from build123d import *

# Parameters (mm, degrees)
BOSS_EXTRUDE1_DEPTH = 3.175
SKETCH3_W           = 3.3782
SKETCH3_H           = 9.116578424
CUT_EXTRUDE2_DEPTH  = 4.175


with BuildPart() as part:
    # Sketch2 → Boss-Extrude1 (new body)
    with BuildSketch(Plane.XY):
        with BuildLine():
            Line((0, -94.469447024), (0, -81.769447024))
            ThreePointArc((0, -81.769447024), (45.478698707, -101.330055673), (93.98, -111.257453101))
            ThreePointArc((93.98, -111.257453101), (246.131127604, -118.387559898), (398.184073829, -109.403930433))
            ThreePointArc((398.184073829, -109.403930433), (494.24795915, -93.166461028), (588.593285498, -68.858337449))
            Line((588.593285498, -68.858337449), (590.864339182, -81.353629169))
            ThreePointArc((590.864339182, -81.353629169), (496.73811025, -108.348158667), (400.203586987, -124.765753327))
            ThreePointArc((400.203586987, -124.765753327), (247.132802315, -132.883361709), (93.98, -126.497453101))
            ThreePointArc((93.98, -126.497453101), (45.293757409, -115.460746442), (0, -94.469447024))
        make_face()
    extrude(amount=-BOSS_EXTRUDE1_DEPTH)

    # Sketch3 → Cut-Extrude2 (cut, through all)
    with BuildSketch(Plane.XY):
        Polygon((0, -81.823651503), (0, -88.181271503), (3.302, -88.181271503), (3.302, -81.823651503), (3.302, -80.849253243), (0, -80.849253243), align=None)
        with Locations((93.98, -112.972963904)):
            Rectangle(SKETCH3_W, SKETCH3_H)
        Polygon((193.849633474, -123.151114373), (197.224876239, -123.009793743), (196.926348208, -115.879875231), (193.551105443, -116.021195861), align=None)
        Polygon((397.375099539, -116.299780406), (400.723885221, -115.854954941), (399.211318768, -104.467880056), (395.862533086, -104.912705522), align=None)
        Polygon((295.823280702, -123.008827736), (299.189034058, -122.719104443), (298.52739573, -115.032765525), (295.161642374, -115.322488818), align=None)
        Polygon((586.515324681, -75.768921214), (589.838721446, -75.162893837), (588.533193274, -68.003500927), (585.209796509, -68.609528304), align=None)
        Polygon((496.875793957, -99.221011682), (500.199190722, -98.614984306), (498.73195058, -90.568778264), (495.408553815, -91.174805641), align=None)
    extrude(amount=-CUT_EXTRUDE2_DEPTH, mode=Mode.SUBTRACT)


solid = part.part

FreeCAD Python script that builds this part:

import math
import FreeCAD as App
import Part
import Sketcher

V = App.Vector
Q = App.Units.Quantity

doc = App.newDocument("Part")
body = doc.addObject("PartDesign::Body", "Body")

# Sketch on XY plane
sketch1 = body.newObject("Sketcher::SketchObject", "Sketch")
sketch1.AttachmentSupport = (doc.getObject("XY_Plane"), [""])
sketch1.MapMode = "FlatFace"
sketch1.addGeometry(Part.LineSegment(V(0, -82, 0), V(0, -94, 0)), False)
sketch1.addGeometry(Part.ArcOfCircle(Part.Circle(V(122, 109, 0), V(0, 0, 1), 237), math.radians(-121), math.radians(-97)), False)
sketch1.addGeometry(Part.ArcOfCircle(Part.Circle(V(238, 1487, 0), V(0, 0, 1), 1620), math.radians(-95.1), math.radians(-84.25)), False)
sketch1.addGeometry(Part.ArcOfCircle(Part.Circle(V(300, 754, 0), V(0, 0, 1), 884), math.radians(-83.52), math.radians(-70.82)), False)
sketch1.addGeometry(Part.LineSegment(V(591, -81, 0), V(589, -69, 0)), False)
sketch1.addGeometry(Part.ArcOfCircle(Part.Circle(V(255, 1032, 0), V(0, 0, 1), 1150), math.radians(-82.83), math.radians(-73.12)), False)
sketch1.addGeometry(Part.ArcOfCircle(Part.Circle(V(237, 1321, 0), V(0, 0, 1), 1440), math.radians(-95.72), math.radians(-83.59)), False)
sketch1.addGeometry(Part.ArcOfCircle(Part.Circle(V(118, 130, 0), V(0, 0, 1), 243), math.radians(-119), math.radians(-96)), False)
sketch1.addConstraint(Sketcher.Constraint("Coincident", 0, 2, 1, 1))
sketch1.addConstraint(Sketcher.Constraint("Coincident", 1, 2, 2, 1))
sketch1.addConstraint(Sketcher.Constraint("Coincident", 2, 2, 3, 1))
sketch1.addConstraint(Sketcher.Constraint("Coincident", 3, 2, 4, 1))
sketch1.addConstraint(Sketcher.Constraint("Coincident", 4, 2, 5, 2))
sketch1.addConstraint(Sketcher.Constraint("Coincident", 5, 1, 6, 2))
sketch1.addConstraint(Sketcher.Constraint("Tangent", 6, 1, 7, 2))
sketch1.addConstraint(Sketcher.Constraint("Coincident", 7, 1, 0, 1))
sketch1.addConstraint(Sketcher.Constraint("Vertical", 0))
sketch1.addConstraint(Sketcher.Constraint("PointOnObject", 0, 2, -2))
sketch1.addConstraint(Sketcher.Constraint("Vertical", 1, 2, 6, 1))
sketch1.addConstraint(Sketcher.Constraint("Radius", 3, Q("34.8 in")))
sketch1.addConstraint(Sketcher.Constraint("DistanceY", 0, 2, 0, 1, Q("0.5 in")))
sketch1.addConstraint(Sketcher.Constraint("Distance", 4, Q("0.5 in")))
sketch1.addConstraint(Sketcher.Constraint("DistanceX", -1, 1, 1, 2, Q("3.7 in")))
sketch1.addConstraint(Sketcher.Constraint("DistanceY", 1, 2, 6, 1, Q("0.6 in")))
sketch1.addConstraint(Sketcher.Constraint("Radius", 1, Q("236.96956 mm")))
sketch1.addConstraint(Sketcher.Constraint("Radius", 2, Q("1620.03361 mm")))
sketch1.addConstraint(Sketcher.Constraint("Radius", 5, Q("1150.31332 mm")))
sketch1.addConstraint(Sketcher.Constraint("Radius", 6, Q("1439.788577 mm")))
sketch1.addConstraint(Sketcher.Constraint("Radius", 7, Q("242.755675 mm")))
sketch1.addConstraint(Sketcher.Constraint("DistanceX", 7, 3, 2, 2, Q("11.1043001 in")))
sketch1.addConstraint(Sketcher.Constraint("DistanceX", 5, 3, 3, 3, Q("45.825899 mm")))
sketch1.addConstraint(Sketcher.Constraint("DistanceX", 1, 3, 6, 3, Q("115.623698 mm")))
sketch1.addConstraint(Sketcher.Constraint("DistanceY", 5, 1, 3, 2, Q("28.050301 mm")))
sketch1.addConstraint(Sketcher.Constraint("DistanceX", -1, 1, 2, 3, Q("237.97163 mm")))
sketch1.addConstraint(Sketcher.Constraint("DistanceX", -1, 1, 3, 3, Q("300.49835 mm")))
sketch1.addConstraint(Sketcher.Constraint("DistanceY", -1, 1, 5, 3, Q("1031.922118 mm")))
sketch1.addConstraint(Sketcher.Constraint("DistanceY", -1, 1, 6, 3, Q("1321.374292 mm")))
pad1 = body.newObject("PartDesign::Pad", "Pad")
pad1.Profile = sketch1
pad1.Length = Q("0.125 in")
pad1.Reversed = True

# Sketch on XY plane
sketch2 = body.newObject("Sketcher::SketchObject", "Sketch001")
sketch2.AttachmentSupport = (doc.getObject("XY_Plane"), [""])
sketch2.MapMode = "FlatFace"
sketch2.addGeometry(Part.LineSegment(V(0, -88.2, 0), V(3.3, -88.2, 0)), False)
sketch2.addGeometry(Part.LineSegment(V(3.3, -88.2, 0), V(3.3, -80.8, 0)), False)
sketch2.addGeometry(Part.LineSegment(V(3.3, -80.8, 0), V(0, -80.8, 0)), False)
sketch2.addGeometry(Part.LineSegment(V(0, -80.8, 0), V(0, -88.2, 0)), False)
sketch2.addGeometry(Part.LineSegment(V(92.3, -108.4, 0), V(92.3, -117.5, 0)), False)
sketch2.addGeometry(Part.LineSegment(V(92.3, -117.5, 0), V(95.7, -117.5, 0)), False)
sketch2.addGeometry(Part.LineSegment(V(95.7, -117.5, 0), V(95.7, -108.4, 0)), False)
sketch2.addGeometry(Part.LineSegment(V(95.7, -108.4, 0), V(92.3, -108.4, 0)), False)
sketch2.addGeometry(Part.LineSegment(V(193.8, -123.2, 0), V(197.2, -123, 0)), False)
sketch2.addGeometry(Part.LineSegment(V(197.2, -123, 0), V(196.9, -115.9, 0)), False)
sketch2.addGeometry(Part.LineSegment(V(196.9, -115.9, 0), V(193.6, -116, 0)), False)
sketch2.addGeometry(Part.LineSegment(V(193.6, -116, 0), V(193.8, -123.2, 0)), False)
sketch2.addGeometry(Part.LineSegment(V(397.4, -116.3, 0), V(400.7, -115.9, 0)), False)
sketch2.addGeometry(Part.LineSegment(V(400.7, -115.9, 0), V(399.2, -104.5, 0)), False)
sketch2.addGeometry(Part.LineSegment(V(399.2, -104.5, 0), V(395.9, -104.9, 0)), False)
sketch2.addGeometry(Part.LineSegment(V(395.9, -104.9, 0), V(397.4, -116.3, 0)), False)
sketch2.addGeometry(Part.LineSegment(V(295.8, -123, 0), V(299.2, -122.7, 0)), False)
sketch2.addGeometry(Part.LineSegment(V(299.2, -122.7, 0), V(298.5, -115, 0)), False)
sketch2.addGeometry(Part.LineSegment(V(298.5, -115, 0), V(295.2, -115.3, 0)), False)
sketch2.addGeometry(Part.LineSegment(V(295.2, -115.3, 0), V(295.8, -123, 0)), False)
sketch2.addGeometry(Part.LineSegment(V(586.5, -75.8, 0), V(589.8, -75.2, 0)), False)
sketch2.addGeometry(Part.LineSegment(V(589.8, -75.2, 0), V(588.5, -68, 0)), False)
sketch2.addGeometry(Part.LineSegment(V(588.5, -68, 0), V(585.2, -68.6, 0)), False)
sketch2.addGeometry(Part.LineSegment(V(585.2, -68.6, 0), V(586.5, -75.8, 0)), False)
sketch2.addGeometry(Part.LineSegment(V(496.9, -99.2, 0), V(500.2, -98.6, 0)), False)
sketch2.addGeometry(Part.LineSegment(V(500.2, -98.6, 0), V(498.7, -90.6, 0)), False)
sketch2.addGeometry(Part.LineSegment(V(498.7, -90.6, 0), V(495.4, -91.2, 0)), False)
sketch2.addGeometry(Part.LineSegment(V(495.4, -91.2, 0), V(496.9, -99.2, 0)), False)
sketch2.addConstraint(Sketcher.Constraint("Coincident", 0, 2, 1, 1))
sketch2.addConstraint(Sketcher.Constraint("Coincident", 1, 2, 2, 1))
sketch2.addConstraint(Sketcher.Constraint("Coincident", 2, 2, 3, 1))
sketch2.addConstraint(Sketcher.Constraint("Coincident", 3, 2, 0, 1))
sketch2.addConstraint(Sketcher.Constraint("Coincident", 4, 2, 5, 1))
sketch2.addConstraint(Sketcher.Constraint("Coincident", 5, 2, 6, 1))
sketch2.addConstraint(Sketcher.Constraint("Coincident", 6, 2, 7, 1))
sketch2.addConstraint(Sketcher.Constraint("Coincident", 7, 2, 4, 1))
sketch2.addConstraint(Sketcher.Constraint("Coincident", 8, 2, 9, 1))
sketch2.addConstraint(Sketcher.Constraint("Coincident", 9, 2, 10, 1))
sketch2.addConstraint(Sketcher.Constraint("Coincident", 10, 2, 11, 1))
sketch2.addConstraint(Sketcher.Constraint("Coincident", 11, 2, 8, 1))
sketch2.addConstraint(Sketcher.Constraint("Coincident", 12, 2, 13, 1))
sketch2.addConstraint(Sketcher.Constraint("Coincident", 13, 2, 14, 1))
sketch2.addConstraint(Sketcher.Constraint("Coincident", 14, 2, 15, 1))
sketch2.addConstraint(Sketcher.Constraint("Coincident", 15, 2, 12, 1))
sketch2.addConstraint(Sketcher.Constraint("Coincident", 16, 2, 17, 1))
sketch2.addConstraint(Sketcher.Constraint("Coincident", 17, 2, 18, 1))
sketch2.addConstraint(Sketcher.Constraint("Coincident", 18, 2, 19, 1))
sketch2.addConstraint(Sketcher.Constraint("Coincident", 19, 2, 16, 1))
sketch2.addConstraint(Sketcher.Constraint("Coincident", 20, 2, 21, 1))
sketch2.addConstraint(Sketcher.Constraint("Coincident", 21, 2, 22, 1))
sketch2.addConstraint(Sketcher.Constraint("Coincident", 22, 2, 23, 1))
sketch2.addConstraint(Sketcher.Constraint("Coincident", 23, 2, 20, 1))
sketch2.addConstraint(Sketcher.Constraint("Coincident", 24, 2, 25, 1))
sketch2.addConstraint(Sketcher.Constraint("Coincident", 25, 2, 26, 1))
sketch2.addConstraint(Sketcher.Constraint("Coincident", 26, 2, 27, 1))
sketch2.addConstraint(Sketcher.Constraint("Coincident", 27, 2, 24, 1))
sketch2.addConstraint(Sketcher.Constraint("Horizontal", 0))
sketch2.addConstraint(Sketcher.Constraint("Vertical", 1))
sketch2.addConstraint(Sketcher.Constraint("Horizontal", 2))
sketch2.addConstraint(Sketcher.Constraint("Vertical", 3))
sketch2.addConstraint(Sketcher.Constraint("Vertical", 4))
sketch2.addConstraint(Sketcher.Constraint("Horizontal", 5))
sketch2.addConstraint(Sketcher.Constraint("Vertical", 6))
sketch2.addConstraint(Sketcher.Constraint("Horizontal", 7))
sketch2.addConstraint(Sketcher.Constraint("PointOnObject", 2, 2, -2))
sketch2.addConstraint(Sketcher.Constraint("Perpendicular", 8, 9))
sketch2.addConstraint(Sketcher.Constraint("Perpendicular", 9, 10))
sketch2.addConstraint(Sketcher.Constraint("Perpendicular", 10, 11))
sketch2.addConstraint(Sketcher.Constraint("Perpendicular", 12, 13))
sketch2.addConstraint(Sketcher.Constraint("Perpendicular", 13, 14))
sketch2.addConstraint(Sketcher.Constraint("Perpendicular", 14, 15))
sketch2.addConstraint(Sketcher.Constraint("Perpendicular", 16, 17))
sketch2.addConstraint(Sketcher.Constraint("Perpendicular", 17, 18))
sketch2.addConstraint(Sketcher.Constraint("Perpendicular", 18, 19))
sketch2.addConstraint(Sketcher.Constraint("Perpendicular", 20, 21))
sketch2.addConstraint(Sketcher.Constraint("Perpendicular", 21, 22))
sketch2.addConstraint(Sketcher.Constraint("Perpendicular", 22, 23))
sketch2.addConstraint(Sketcher.Constraint("Perpendicular", 23, 24))
sketch2.addConstraint(Sketcher.Constraint("Perpendicular", 24, 25))
sketch2.addConstraint(Sketcher.Constraint("Perpendicular", 25, 26))
sketch2.addConstraint(Sketcher.Constraint("Perpendicular", 26, 27))
sketch2.addConstraint(Sketcher.Constraint("Equal", 10, 12))
sketch2.addConstraint(Sketcher.Constraint("Equal", 14, 16))
sketch2.addConstraint(Sketcher.Constraint("Equal", 18, 20))
sketch2.addConstraint(Sketcher.Constraint("Equal", 22, 24))
sketch2.addConstraint(Sketcher.Constraint("DistanceX", 0, 1, 0, 2, Q("0.13 in")))
sketch2.addConstraint(Sketcher.Constraint("DistanceX", 5, 1, 5, 2, Q("0.133 in")))
sketch2.addConstraint(Sketcher.Constraint("Distance", 8, Q("0.133 in")))
sketch2.addConstraint(Sketcher.Constraint("DistanceX", -1, 1, 4, 2, Q("3.6335 in")))
sketch2.addConstraint(Sketcher.Constraint("DistanceY", 9, 2, -1, 1, Q("4.5621998 in")))
sketch2.addConstraint(Sketcher.Constraint("DistanceY", 25, 2, -1, 1, Q("3.5656999 in")))
sketch2.addConstraint(Sketcher.Constraint("DistanceY", 1, 1, 1, 2, Q("7.332018 mm")))
sketch2.addConstraint(Sketcher.Constraint("DistanceY", 4, 2, 4, 1, Q("9.116578 mm")))
sketch2.addConstraint(Sketcher.Constraint("DistanceX", -1, 1, 15, 2, Q("397.3751 mm")))
sketch2.addConstraint(Sketcher.Constraint("DistanceY", 21, 2, -1, 1, Q("68.003501 mm")))
sketch2.addConstraint(Sketcher.Constraint("DistanceY", 4, 2, 1, 2, Q("36.682 mm")))
sketch2.addConstraint(Sketcher.Constraint("DistanceY", 9, 2, 6, 2, Q("7.465201 mm")))
sketch2.addConstraint(Sketcher.Constraint("DistanceY", 5, 2, 12, 2, Q("1.676298 mm")))
sketch2.addConstraint(Sketcher.Constraint("DistanceY", 15, 2, 13, 2, Q("11.8319 mm")))
sketch2.addConstraint(Sketcher.Constraint("DistanceX", 16, 2, 14, 2, Q("96.673499 mm")))
sketch2.addConstraint(Sketcher.Constraint("DistanceY", 16, 2, 14, 2, Q("17.806399 mm")))
sketch2.addConstraint(Sketcher.Constraint("Distance", 25, Q("8.178889 mm")))
sketch2.addConstraint(Sketcher.Constraint("DistanceX", -1, 1, 9, 2, Q("196.926348 mm")))
sketch2.addConstraint(Sketcher.Constraint("DistanceX", -1, 1, 13, 2, Q("399.211319 mm")))
sketch2.addConstraint(Sketcher.Constraint("DistanceY", 18, 2, -1, 1, Q("115.322489 mm")))
sketch2.addConstraint(Sketcher.Constraint("DistanceX", -1, 1, 19, 2, Q("295.823281 mm")))
sketch2.addConstraint(Sketcher.Constraint("DistanceX", -1, 1, 20, 2, Q("589.838721 mm")))
sketch2.addConstraint(Sketcher.Constraint("DistanceY", 22, 2, -1, 1, Q("68.609528 mm")))
sketch2.addConstraint(Sketcher.Constraint("DistanceY", 23, 2, -1, 1, Q("75.768921 mm")))
sketch2.addConstraint(Sketcher.Constraint("DistanceX", -1, 1, 24, 2, Q("500.199191 mm")))
sketch2.addConstraint(Sketcher.Constraint("DistanceY", 8, 2, 5, 2, Q("5.478541 mm")))
sketch2.addConstraint(Sketcher.Constraint("DistanceX", 9, 2, 8, 2, Q("0.298528 mm")))
pocket1 = body.newObject("PartDesign::Pocket", "Pocket")
pocket1.Profile = sketch2
pocket1.Type = "ThroughAll"

doc.recompute()
